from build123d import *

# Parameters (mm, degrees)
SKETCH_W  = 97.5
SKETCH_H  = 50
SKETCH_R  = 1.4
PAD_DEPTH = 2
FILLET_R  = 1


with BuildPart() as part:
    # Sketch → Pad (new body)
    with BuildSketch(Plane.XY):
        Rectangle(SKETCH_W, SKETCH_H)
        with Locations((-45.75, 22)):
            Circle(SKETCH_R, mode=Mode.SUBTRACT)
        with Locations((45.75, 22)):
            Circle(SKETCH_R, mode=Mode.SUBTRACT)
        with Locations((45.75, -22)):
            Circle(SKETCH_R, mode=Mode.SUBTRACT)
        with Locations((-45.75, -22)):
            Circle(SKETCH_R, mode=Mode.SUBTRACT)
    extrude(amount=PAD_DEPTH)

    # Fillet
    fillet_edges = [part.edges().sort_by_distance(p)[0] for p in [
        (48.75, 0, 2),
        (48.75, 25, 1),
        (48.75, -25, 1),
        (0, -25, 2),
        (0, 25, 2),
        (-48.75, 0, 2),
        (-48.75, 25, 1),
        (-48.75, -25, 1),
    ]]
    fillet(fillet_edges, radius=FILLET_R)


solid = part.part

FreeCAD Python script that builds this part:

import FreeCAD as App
import Part
import Sketcher


def edges_at(feature, points):
    """Names of the edges that pass closest to the given points."""
    edges = feature.Shape.Edges
    near = lambda p: min(range(len(edges)), key=lambda i: edges[i].distToShape(Part.Vertex(*p))[0])
    return sorted({f"Edge{near(p) + 1}" for p in points})


def add_polygon(sketch, points):
    """Adds a closed chain of lines whose ends are joined by coincident constraints."""
    first, n = sketch.GeometryCount, len(points)
    for a, b in zip(points, points[1:] + points[:1]):
        sketch.addGeometry(Part.LineSegment(App.Vector(*a, 0), App.Vector(*b, 0)), False)
    for i in range(n):
        sketch.addConstraint(Sketcher.Constraint("Coincident", first + i, 2, first + (i + 1) % n, 1))

doc = App.newDocument("Part")
params = doc.addObject("Spreadsheet::Sheet", "Params")
for row, (alias, value) in enumerate([
    ("sketch1_diameter", "2.8 mm"),
    ("sketch1_height", "50 mm"),
    ("sketch1_width", "97.5 mm"),
    ("pad1_length", "2 mm"),
    ("fillet_radius", "1 mm"),
], start=1):
    params.set(f"A{row}", alias)
    params.set(f"B{row}", "=" + value)
    params.setAlias(f"B{row}", alias)

body = doc.addObject("PartDesign::Body", "Body")

sketch1 = body.newObject("Sketcher::SketchObject", "Sketch")
sketch1.AttachmentSupport = (doc.getObject("XY_Plane"), [""])
sketch1.MapMode = "FlatFace"
add_polygon(sketch1, [(-48.8, 25), (-48.8, -25), (48.8, -25), (48.8, 25)])
sketch1.addGeometry(Part.Circle(App.Vector(-45.8, -22, 0), App.Vector(0, 0, 1), 1.4), False)
sketch1.addGeometry(Part.Circle(App.Vector(45.8, -22, 0), App.Vector(0, 0, 1), 1.4), False)
sketch1.addGeometry(Part.Circle(App.Vector(-45.8, 22, 0), App.Vector(0, 0, 1), 1.4), False)
sketch1.addGeometry(Part.Circle(App.Vector(45.8, 22, 0), App.Vector(0, 0, 1), 1.4), False)
sketch1.addConstraint([
    Sketcher.Constraint("Vertical", 0),
    Sketcher.Constraint("Horizontal", 1),
    Sketcher.Constraint("Vertical", 2),
    Sketcher.Constraint("Horizontal", 3),
    Sketcher.Constraint("Equal", 4, 5),
    Sketcher.Constraint("Equal", 5, 6),
    Sketcher.Constraint("Equal", 6, 7),
    Sketcher.Constraint("Symmetric", 5, 3, 6, 3, -1, 1),
    Sketcher.Constraint("Symmetric", 4, 3, 7, 3, -1, 1),
    Sketcher.Constraint("Symmetric", 0, 2, 2, 2, -1, 1),
    Sketcher.Constraint("Symmetric", 4, 3, 5, 3, -2),
    Sketcher.Constraint("Diameter", 4, 2.8),
    Sketcher.Constraint("DistanceY", 0, 2, 0, 1, 50.0),
    Sketcher.Constraint("DistanceX", 1, 1, 1, 2, 97.5),
    Sketcher.Constraint("DistanceY", 4, 3, -1, 1, 22.0),
    Sketcher.Constraint("DistanceX", 0, 2, 4, 3, 3.0),
])
sketch1.setExpression("Constraints[15]", "Params.sketch1_diameter")
sketch1.setExpression("Constraints[16]", "Params.sketch1_height")
sketch1.setExpression("Constraints[17]", "Params.sketch1_width")
pad1 = body.newObject("PartDesign::Pad", "Pad")
pad1.Profile = sketch1
pad1.setExpression("Length", "Params.pad1_length")
doc.recompute()

fillet = body.newObject("PartDesign::Fillet", "Fillet")
fillet.Base = (pad1, edges_at(pad1, [
    (48.75, 0, 2),
    (48.75, 25, 1),
    (48.75, -25, 1),
    (0, -25, 2),
    (0, 25, 2),
    (-48.75, 0, 2),
    (-48.75, 25, 1),
    (-48.75, -25, 1),
]))
fillet.setExpression("Radius", "Params.fillet_radius")

doc.recompute()
